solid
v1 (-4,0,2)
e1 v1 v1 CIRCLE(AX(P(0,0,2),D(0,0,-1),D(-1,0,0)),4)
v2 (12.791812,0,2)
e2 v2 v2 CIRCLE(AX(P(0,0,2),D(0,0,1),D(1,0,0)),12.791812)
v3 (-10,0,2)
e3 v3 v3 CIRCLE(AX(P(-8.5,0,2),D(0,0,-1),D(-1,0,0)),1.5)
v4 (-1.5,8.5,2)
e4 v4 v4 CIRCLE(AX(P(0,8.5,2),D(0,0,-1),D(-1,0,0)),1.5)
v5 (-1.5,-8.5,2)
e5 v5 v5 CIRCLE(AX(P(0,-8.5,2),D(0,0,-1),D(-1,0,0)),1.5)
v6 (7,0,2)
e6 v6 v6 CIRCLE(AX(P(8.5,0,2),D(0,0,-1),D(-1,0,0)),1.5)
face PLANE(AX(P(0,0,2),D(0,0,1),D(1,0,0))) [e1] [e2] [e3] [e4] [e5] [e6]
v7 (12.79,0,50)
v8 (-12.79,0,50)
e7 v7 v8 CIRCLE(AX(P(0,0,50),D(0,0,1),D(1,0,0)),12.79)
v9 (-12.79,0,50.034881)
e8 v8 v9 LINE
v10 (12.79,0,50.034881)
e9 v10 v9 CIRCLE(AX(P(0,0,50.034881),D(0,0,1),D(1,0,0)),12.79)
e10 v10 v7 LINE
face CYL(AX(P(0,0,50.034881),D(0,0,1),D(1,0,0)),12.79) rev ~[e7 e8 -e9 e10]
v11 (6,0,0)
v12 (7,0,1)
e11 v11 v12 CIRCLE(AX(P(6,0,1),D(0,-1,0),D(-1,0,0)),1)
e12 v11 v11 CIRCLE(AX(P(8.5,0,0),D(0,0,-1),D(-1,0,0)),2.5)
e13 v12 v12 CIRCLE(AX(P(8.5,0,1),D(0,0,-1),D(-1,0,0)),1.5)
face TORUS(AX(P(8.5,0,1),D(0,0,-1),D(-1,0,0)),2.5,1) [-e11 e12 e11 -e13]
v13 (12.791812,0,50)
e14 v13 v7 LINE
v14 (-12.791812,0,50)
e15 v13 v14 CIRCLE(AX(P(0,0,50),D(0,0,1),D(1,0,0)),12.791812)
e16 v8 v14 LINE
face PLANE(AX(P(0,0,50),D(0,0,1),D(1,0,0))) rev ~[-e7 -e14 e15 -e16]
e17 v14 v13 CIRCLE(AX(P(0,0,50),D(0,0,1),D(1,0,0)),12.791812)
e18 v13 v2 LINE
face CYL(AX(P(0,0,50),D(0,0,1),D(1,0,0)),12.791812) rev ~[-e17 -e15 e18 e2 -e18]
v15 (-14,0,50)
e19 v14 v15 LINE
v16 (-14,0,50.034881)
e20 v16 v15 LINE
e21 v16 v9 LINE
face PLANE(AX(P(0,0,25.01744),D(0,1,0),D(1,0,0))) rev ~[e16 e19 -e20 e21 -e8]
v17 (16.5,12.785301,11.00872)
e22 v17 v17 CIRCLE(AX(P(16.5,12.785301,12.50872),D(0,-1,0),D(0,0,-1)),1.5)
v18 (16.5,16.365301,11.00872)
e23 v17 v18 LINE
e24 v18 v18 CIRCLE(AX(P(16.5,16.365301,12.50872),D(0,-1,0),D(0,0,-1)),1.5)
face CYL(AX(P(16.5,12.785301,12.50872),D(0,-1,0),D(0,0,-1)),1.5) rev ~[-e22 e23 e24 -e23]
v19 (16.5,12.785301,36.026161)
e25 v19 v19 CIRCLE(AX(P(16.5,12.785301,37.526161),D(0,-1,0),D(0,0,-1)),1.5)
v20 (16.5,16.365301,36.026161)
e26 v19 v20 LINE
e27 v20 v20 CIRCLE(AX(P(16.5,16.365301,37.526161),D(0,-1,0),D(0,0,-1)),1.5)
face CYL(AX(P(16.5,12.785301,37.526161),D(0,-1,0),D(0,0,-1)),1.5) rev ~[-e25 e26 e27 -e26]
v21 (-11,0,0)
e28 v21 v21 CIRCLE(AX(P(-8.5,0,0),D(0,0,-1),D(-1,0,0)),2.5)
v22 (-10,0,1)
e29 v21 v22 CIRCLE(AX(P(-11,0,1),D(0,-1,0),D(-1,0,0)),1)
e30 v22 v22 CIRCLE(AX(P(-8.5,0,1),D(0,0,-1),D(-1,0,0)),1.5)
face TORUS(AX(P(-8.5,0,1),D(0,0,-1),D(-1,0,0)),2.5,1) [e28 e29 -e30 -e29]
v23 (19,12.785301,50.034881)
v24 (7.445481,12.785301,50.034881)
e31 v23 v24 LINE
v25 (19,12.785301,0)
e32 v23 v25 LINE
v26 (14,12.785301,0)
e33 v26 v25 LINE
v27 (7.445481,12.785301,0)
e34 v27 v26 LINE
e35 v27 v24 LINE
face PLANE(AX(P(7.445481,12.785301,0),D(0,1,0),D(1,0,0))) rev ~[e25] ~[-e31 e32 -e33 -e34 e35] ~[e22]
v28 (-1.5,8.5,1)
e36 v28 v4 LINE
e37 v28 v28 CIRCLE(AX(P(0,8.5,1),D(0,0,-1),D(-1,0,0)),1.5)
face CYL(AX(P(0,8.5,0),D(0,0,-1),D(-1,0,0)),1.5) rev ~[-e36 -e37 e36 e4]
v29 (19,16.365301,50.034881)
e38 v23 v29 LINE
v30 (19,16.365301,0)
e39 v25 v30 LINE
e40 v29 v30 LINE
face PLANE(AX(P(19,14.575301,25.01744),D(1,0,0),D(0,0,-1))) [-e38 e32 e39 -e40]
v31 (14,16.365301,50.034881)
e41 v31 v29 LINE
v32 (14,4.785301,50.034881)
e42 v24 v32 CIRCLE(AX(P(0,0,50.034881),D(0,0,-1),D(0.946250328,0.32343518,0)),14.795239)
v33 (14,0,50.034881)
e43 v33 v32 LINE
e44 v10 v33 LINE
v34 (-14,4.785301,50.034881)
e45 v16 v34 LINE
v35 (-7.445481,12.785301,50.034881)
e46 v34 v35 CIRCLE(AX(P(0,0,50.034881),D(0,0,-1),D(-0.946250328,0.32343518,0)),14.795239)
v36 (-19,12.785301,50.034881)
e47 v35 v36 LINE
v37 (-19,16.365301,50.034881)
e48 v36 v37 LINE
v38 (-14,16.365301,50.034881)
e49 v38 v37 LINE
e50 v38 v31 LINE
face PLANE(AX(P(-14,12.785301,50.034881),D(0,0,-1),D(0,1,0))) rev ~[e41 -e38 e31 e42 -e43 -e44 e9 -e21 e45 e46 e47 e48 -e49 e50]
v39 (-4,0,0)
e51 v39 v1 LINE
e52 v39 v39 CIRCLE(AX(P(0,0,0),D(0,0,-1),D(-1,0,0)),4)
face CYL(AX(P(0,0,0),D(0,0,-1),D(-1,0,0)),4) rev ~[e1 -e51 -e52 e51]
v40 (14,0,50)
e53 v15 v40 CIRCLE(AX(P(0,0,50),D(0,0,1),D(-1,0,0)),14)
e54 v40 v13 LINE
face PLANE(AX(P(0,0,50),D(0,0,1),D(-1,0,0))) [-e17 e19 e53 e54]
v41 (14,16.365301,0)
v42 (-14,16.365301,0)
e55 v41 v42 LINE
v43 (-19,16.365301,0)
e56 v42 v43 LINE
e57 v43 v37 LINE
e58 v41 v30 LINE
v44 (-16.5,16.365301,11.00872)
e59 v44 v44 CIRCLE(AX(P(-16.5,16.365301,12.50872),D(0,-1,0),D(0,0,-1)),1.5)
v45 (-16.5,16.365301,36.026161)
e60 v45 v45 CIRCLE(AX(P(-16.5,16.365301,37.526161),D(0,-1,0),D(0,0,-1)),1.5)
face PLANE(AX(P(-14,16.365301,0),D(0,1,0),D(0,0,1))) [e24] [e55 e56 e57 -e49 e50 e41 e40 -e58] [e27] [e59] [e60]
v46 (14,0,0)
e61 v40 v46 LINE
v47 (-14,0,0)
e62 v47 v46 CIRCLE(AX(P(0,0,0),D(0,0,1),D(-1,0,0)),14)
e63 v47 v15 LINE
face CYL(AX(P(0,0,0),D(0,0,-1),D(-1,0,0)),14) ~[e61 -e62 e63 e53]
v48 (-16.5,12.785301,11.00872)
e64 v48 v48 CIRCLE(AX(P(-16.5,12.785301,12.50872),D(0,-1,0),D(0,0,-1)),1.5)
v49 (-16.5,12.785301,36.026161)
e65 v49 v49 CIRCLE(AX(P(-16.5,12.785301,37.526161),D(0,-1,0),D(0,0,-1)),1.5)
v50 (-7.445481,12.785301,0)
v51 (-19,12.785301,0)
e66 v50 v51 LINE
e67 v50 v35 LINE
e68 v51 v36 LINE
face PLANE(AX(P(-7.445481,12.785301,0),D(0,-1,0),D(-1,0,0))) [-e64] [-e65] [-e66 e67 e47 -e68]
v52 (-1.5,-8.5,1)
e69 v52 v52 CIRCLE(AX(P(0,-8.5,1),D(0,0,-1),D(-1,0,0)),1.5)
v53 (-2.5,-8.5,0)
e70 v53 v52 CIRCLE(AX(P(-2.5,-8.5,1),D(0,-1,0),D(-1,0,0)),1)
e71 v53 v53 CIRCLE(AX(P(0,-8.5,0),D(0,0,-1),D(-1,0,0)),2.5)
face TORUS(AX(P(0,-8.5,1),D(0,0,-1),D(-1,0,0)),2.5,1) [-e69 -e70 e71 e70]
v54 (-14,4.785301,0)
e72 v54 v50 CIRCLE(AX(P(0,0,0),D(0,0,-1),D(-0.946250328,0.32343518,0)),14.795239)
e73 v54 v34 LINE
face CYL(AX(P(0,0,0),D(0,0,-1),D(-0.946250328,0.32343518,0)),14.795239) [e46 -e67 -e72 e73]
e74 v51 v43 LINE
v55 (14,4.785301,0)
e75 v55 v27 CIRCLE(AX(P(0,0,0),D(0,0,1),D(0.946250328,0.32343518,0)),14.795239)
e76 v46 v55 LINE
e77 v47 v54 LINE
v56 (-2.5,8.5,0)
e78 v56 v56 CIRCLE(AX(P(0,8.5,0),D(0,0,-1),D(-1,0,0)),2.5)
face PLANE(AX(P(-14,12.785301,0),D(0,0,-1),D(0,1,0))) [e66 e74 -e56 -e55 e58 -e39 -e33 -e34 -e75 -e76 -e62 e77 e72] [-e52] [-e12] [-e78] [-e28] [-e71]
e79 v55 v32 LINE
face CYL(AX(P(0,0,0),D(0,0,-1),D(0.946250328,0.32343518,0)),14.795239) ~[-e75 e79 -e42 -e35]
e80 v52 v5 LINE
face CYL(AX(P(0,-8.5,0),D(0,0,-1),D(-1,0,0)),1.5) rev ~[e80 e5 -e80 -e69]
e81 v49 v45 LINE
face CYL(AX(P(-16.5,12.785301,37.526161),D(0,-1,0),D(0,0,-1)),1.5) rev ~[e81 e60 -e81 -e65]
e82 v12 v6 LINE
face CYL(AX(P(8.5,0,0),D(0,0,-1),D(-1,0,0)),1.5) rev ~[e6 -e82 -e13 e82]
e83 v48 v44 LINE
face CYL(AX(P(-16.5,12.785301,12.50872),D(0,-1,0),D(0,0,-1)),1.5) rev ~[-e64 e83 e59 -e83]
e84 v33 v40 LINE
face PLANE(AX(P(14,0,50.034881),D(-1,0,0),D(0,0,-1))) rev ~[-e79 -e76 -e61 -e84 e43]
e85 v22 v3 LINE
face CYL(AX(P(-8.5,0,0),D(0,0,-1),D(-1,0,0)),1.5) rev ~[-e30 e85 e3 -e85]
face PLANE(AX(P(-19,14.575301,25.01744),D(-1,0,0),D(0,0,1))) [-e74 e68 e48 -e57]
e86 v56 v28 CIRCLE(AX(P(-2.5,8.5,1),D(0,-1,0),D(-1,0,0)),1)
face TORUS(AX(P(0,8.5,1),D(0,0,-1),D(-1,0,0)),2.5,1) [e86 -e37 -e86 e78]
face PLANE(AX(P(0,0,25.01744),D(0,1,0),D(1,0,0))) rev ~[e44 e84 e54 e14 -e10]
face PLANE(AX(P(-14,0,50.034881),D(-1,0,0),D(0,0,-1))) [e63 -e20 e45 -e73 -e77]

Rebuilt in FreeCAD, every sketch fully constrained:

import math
import FreeCAD as App
import Part
import Sketcher
from FreeCAD import Vector


def edges_at(feature, points):
    """Names of the edges that pass closest to the given points."""
    edges = feature.Shape.Edges
    near = lambda p: min(range(len(edges)), key=lambda i: edges[i].distToShape(Part.Vertex(*p))[0])
    return sorted({f"Edge{near(p) + 1}" for p in points})

doc = App.newDocument("Part")
body = doc.addObject("PartDesign::Body", "Body")

# Sketch on XY plane
sketch1 = doc.addObject("Sketcher::SketchObject", "Sketch")
body.addObject(sketch1)
sketch1.AttachmentSupport = (doc.XY_Plane, [""])
sketch1.MapMode = "FlatFace"
sketch1.addGeometry(Part.Circle(Vector(0, 0, 0), Vector(0, 0, 1), 14), False)
sketch1.addConstraint([
    Sketcher.Constraint("Coincident", 0, 3, -1, 1),
    Sketcher.Constraint("Diameter", 0, 28.0),
])
pad1 = doc.addObject("PartDesign::Pad", "Pad")
body.addObject(pad1)
pad1.Profile = sketch1
pad1.Length = 50

# Sketch on XZ plane
sketch2 = doc.addObject("Sketcher::SketchObject", "Sketch001")
body.addObject(sketch2)
sketch2.AttachmentSupport = (doc.XZ_Plane, [""])
sketch2.MapMode = "FlatFace"
sketch2.addGeometry([
    Part.LineSegment(Vector(-14, 0, 0), Vector(-14, 50, 0)),
    Part.LineSegment(Vector(-14, 50, 0), Vector(14, 50, 0)),
    Part.LineSegment(Vector(14, 50, 0), Vector(14, 0, 0)),
    Part.LineSegment(Vector(14, 0, 0), Vector(-14, 0, 0)),
], False)
sketch2.addConstraint([
    Sketcher.Constraint("Coincident", 0, 2, 1, 1),
    Sketcher.Constraint("Coincident", 1, 2, 2, 1),
    Sketcher.Constraint("Coincident", 2, 2, 3, 1),
    Sketcher.Constraint("Coincident", 3, 2, 0, 1),
    Sketcher.Constraint("Vertical", 0),
    Sketcher.Constraint("Horizontal", 1),
    Sketcher.Constraint("Vertical", 2),
    Sketcher.Constraint("Horizontal", 3),
    Sketcher.Constraint("Symmetric", 2, 2, 3, 2, -1, 1),
    Sketcher.Constraint("DistanceX", 1, 1, 1, 2, 28.0),
    Sketcher.Constraint("DistanceY", 0, 1, 0, 2, 50.034881),
])
pad2 = doc.addObject("PartDesign::Pad", "Pad001")
body.addObject(pad2)
pad2.Profile = sketch2
pad2.Length = 21
pad2.Reversed = True

# Sketch on XY plane
sketch3 = doc.addObject("Sketcher::SketchObject", "Sketch002")
body.addObject(sketch3)
sketch3.AttachmentSupport = (doc.XY_Plane, [""])
sketch3.MapMode = "FlatFace"
sketch3.AttachmentOffset = App.Placement(Vector(0, 0, 50), App.Rotation())
sketch3.addGeometry(Part.Circle(Vector(0, 0, 0), Vector(0, 0, 1), 13), False)
sketch3.addConstraint([
    Sketcher.Constraint("Coincident", 0, 3, -1, 1),
    Sketcher.Constraint("Diameter", 0, 25.583624),
])
pocket1 = doc.addObject("PartDesign::Pocket", "Pocket")
body.addObject(pocket1)
pocket1.Profile = sketch3
pocket1.Length = 48

# Sketch on XY plane
sketch4 = doc.addObject("Sketcher::SketchObject", "Sketch003")
body.addObject(sketch4)
sketch4.AttachmentSupport = (doc.XY_Plane, [""])
sketch4.MapMode = "FlatFace"
sketch4.addGeometry(Part.Circle(Vector(0, 0, 0), Vector(0, 0, 1), 4), False)
sketch4.addConstraint([
    Sketcher.Constraint("Coincident", 0, 3, -1, 1),
    Sketcher.Constraint("Diameter", 0, 8.0),
])
pocket2 = doc.addObject("PartDesign::Pocket", "Pocket001")
body.addObject(pocket2)
pocket2.Profile = sketch4
pocket2.Length = 49
pocket2.Reversed = True

# Sketch on XY plane
sketch5 = doc.addObject("Sketcher::SketchObject", "Sketch004")
body.addObject(sketch5)
sketch5.AttachmentSupport = (doc.XY_Plane, [""])
sketch5.MapMode = "FlatFace"
sketch5.addGeometry([
    Part.Circle(Vector(0, -8.5, 0), Vector(0, 0, 1), 1.5),
    Part.Circle(Vector(0, 8.5, 0), Vector(0, 0, 1), 1.5),
    Part.Circle(Vector(-8.5, 0, 0), Vector(0, 0, 1), 1.5),
    Part.Circle(Vector(8.5, 0, 0), Vector(0, 0, 1), 1.5),
], False)
sketch5.addConstraint([
    Sketcher.Constraint("Equal", 0, 1),
    Sketcher.Constraint("Equal", 1, 2),
    Sketcher.Constraint("Equal", 2, 3),
    Sketcher.Constraint("Symmetric", 0, 3, 1, 3, -1, 1),
    Sketcher.Constraint("Symmetric", 2, 3, 3, 3, -1, 1),
    Sketcher.Constraint("PointOnObject", 0, 3, -2),
    Sketcher.Constraint("PointOnObject", 2, 3, -1),
    Sketcher.Constraint("Diameter", 0, 3.0),
    Sketcher.Constraint("DistanceY", 0, 3, 1, 3, 17.0),
    Sketcher.Constraint("DistanceX", 2, 3, 3, 3, 17.0),
])
pocket3 = doc.addObject("PartDesign::Pocket", "Pocket002")
body.addObject(pocket3)
pocket3.Profile = sketch5
pocket3.Length = 49
pocket3.Reversed = True

# Sketch on XY plane
sketch6 = doc.addObject("Sketcher::SketchObject", "Sketch005")
body.addObject(sketch6)
sketch6.AttachmentSupport = (doc.XY_Plane, [""])
sketch6.MapMode = "FlatFace"
sketch6.AttachmentOffset = App.Placement(Vector(0, 0, 50.034881), App.Rotation())
sketch6.addGeometry(Part.Circle(Vector(0, 0, 0), Vector(0, 0, 1), 13), False)
sketch6.addConstraint([
    Sketcher.Constraint("Coincident", 0, 3, -1, 1),
    Sketcher.Constraint("Diameter", 0, 25.58),
])
pocket4 = doc.addObject("PartDesign::Pocket", "Pocket003")
body.addObject(pocket4)
pocket4.Profile = sketch6
pocket4.Length = 21

# Sketch on XY plane
sketch7 = doc.addObject("Sketcher::SketchObject", "Sketch006")
body.addObject(sketch7)
sketch7.AttachmentSupport = (doc.XY_Plane, [""])
sketch7.MapMode = "FlatFace"
sketch7.AttachmentOffset = App.Placement(Vector(0, 0, 50.034881), App.Rotation())
sketch7.addGeometry([
    Part.LineSegment(Vector(-14, 21, 0), Vector(-14, 16.4, 0)),
    Part.LineSegment(Vector(-14, 16.4, 0), Vector(14, 16.4, 0)),
    Part.LineSegment(Vector(14, 16.4, 0), Vector(14, 21, 0)),
    Part.LineSegment(Vector(14, 21, 0), Vector(-14, 21, 0)),
], False)
sketch7.addConstraint([
    Sketcher.Constraint("Coincident", 0, 2, 1, 1),
    Sketcher.Constraint("Coincident", 1, 2, 2, 1),
    Sketcher.Constraint("Coincident", 2, 2, 3, 1),
    Sketcher.Constraint("Coincident", 3, 2, 0, 1),
    Sketcher.Constraint("Vertical", 0),
    Sketcher.Constraint("Horizontal", 1),
    Sketcher.Constraint("Vertical", 2),
    Sketcher.Constraint("Horizontal", 3),
    Sketcher.Constraint("DistanceX", 1, 1, 1, 2, 28.0),
    Sketcher.Constraint("DistanceX", 0, 2, -1, 1, 14.0),
    Sketcher.Constraint("DistanceY", -1, 1, 2, 2, 21.0),
    Sketcher.Constraint("DistanceY", 0, 2, 0, 1, 4.634699),
])
pocket5 = doc.addObject("PartDesign::Pocket", "Pocket004")
body.addObject(pocket5)
pocket5.Profile = sketch7
pocket5.Length = 53

# Sketch on YZ plane
sketch8 = doc.addObject("Sketcher::SketchObject", "Sketch007")
body.addObject(sketch8)
sketch8.AttachmentSupport = (doc.YZ_Plane, [""])
sketch8.MapMode = "FlatFace"
sketch8.AttachmentOffset = App.Placement(Vector(0, 0, 14), App.Rotation())
sketch8.addGeometry([
    Part.LineSegment(Vector(16.4, 50, 0), Vector(12.8, 50, 0)),
    Part.LineSegment(Vector(12.8, 50, 0), Vector(12.8, 0, 0)),
    Part.LineSegment(Vector(12.8, 0, 0), Vector(16.4, 0, 0)),
    Part.LineSegment(Vector(16.4, 0, 0), Vector(16.4, 50, 0)),
], False)
sketch8.addConstraint([
    Sketcher.Constraint("Coincident", 0, 2, 1, 1),
    Sketcher.Constraint("Coincident", 1, 2, 2, 1),
    Sketcher.Constraint("Coincident", 2, 2, 3, 1),
    Sketcher.Constraint("Coincident", 3, 2, 0, 1),
    Sketcher.Constraint("Horizontal", 0),
    Sketcher.Constraint("Vertical", 1),
    Sketcher.Constraint("Horizontal", 2),
    Sketcher.Constraint("Vertical", 3),
    Sketcher.Constraint("PointOnObject", 1, 2, -1),
    Sketcher.Constraint("DistanceX", 0, 2, 0, 1, 3.58),
    Sketcher.Constraint("DistanceY", 1, 2, 1, 1, 50.034881),
    Sketcher.Constraint("DistanceX", -1, 1, 0, 2, 12.785301),
])
pad3 = doc.addObject("PartDesign::Pad", "Pad002")
body.addObject(pad3)
pad3.Profile = sketch8
pad3.Length = 5

# Sketch on XZ plane
sketch9 = doc.addObject("Sketcher::SketchObject", "Sketch008")
body.addObject(sketch9)
sketch9.AttachmentSupport = (doc.XZ_Plane, [""])
sketch9.MapMode = "FlatFace"
sketch9.AttachmentOffset = App.Placement(Vector(0, 0, -12.785301), App.Rotation())
sketch9.addGeometry([
    Part.Circle(Vector(16.5, 37.5, 0), Vector(0, 0, 1), 1.5),
    Part.Circle(Vector(16.5, 12.5, 0), Vector(0, 0, 1), 1.5),
], False)
sketch9.addConstraint([
    Sketcher.Constraint("Equal", 0, 1),
    Sketcher.Constraint("Vertical", 0, 3, 1, 3),
    Sketcher.Constraint("Diameter", 0, 3.0),
    Sketcher.Constraint("DistanceX", -1, 1, 0, 3, 16.5),
    Sketcher.Constraint("DistanceY", -1, 1, 0, 3, 37.526161),
    Sketcher.Constraint("DistanceY", -1, 1, 1, 3, 12.50872),
])
pocket6 = doc.addObject("PartDesign::Pocket", "Pocket005")
body.addObject(pocket6)
pocket6.Profile = sketch9
pocket6.Length = 5

# Sketch on YZ plane
sketch10 = doc.addObject("Sketcher::SketchObject", "Sketch009")
body.addObject(sketch10)
sketch10.AttachmentSupport = (doc.YZ_Plane, [""])
sketch10.MapMode = "FlatFace"
sketch10.AttachmentOffset = App.Placement(Vector(0, 0, -14), App.Rotation())
sketch10.addGeometry([
    Part.LineSegment(Vector(16.4, 0, 0), Vector(12.8, 0, 0)),
    Part.LineSegment(Vector(12.8, 0, 0), Vector(12.8, 50, 0)),
    Part.LineSegment(Vector(12.8, 50, 0), Vector(16.4, 50, 0)),
    Part.LineSegment(Vector(16.4, 50, 0), Vector(16.4, 0, 0)),
], False)
sketch10.addConstraint([
    Sketcher.Constraint("Coincident", 0, 2, 1, 1),
    Sketcher.Constraint("Coincident", 1, 2, 2, 1),
    Sketcher.Constraint("Coincident", 2, 2, 3, 1),
    Sketcher.Constraint("Coincident", 3, 2, 0, 1),
    Sketcher.Constraint("Horizontal", 0),
    Sketcher.Constraint("Vertical", 1),
    Sketcher.Constraint("Horizontal", 2),
    Sketcher.Constraint("Vertical", 3),
    Sketcher.Constraint("PointOnObject", 0, 2, -1),
    Sketcher.Constraint("DistanceX", 0, 2, 0, 1, 3.58),
    Sketcher.Constraint("DistanceY", 1, 1, 1, 2, 50.034881),
    Sketcher.Constraint("DistanceX", -1, 1, 0, 2, 12.785301),
])
pad4 = doc.addObject("PartDesign::Pad", "Pad003")
body.addObject(pad4)
pad4.Profile = sketch10
pad4.Length = 5
pad4.Reversed = True

# Sketch on XZ plane
sketch11 = doc.addObject("Sketcher::SketchObject", "Sketch010")
body.addObject(sketch11)
sketch11.AttachmentSupport = (doc.XZ_Plane, [""])
sketch11.MapMode = "FlatFace"
sketch11.AttachmentOffset = App.Placement(Vector(0, 0, -12.785301), App.Rotation())
sketch11.addGeometry([
    Part.Circle(Vector(-16.5, 12.5, 0), Vector(0, 0, 1), 1.5),
    Part.Circle(Vector(-16.5, 37.5, 0), Vector(0, 0, 1), 1.5),
], False)
sketch11.addConstraint([
    Sketcher.Constraint("Equal", 0, 1),
    Sketcher.Constraint("Vertical", 0, 3, 1, 3),
    Sketcher.Constraint("Diameter", 0, 3.0),
    Sketcher.Constraint("DistanceX", 0, 3, -1, 1, 16.5),
    Sketcher.Constraint("DistanceY", -1, 1, 0, 3, 12.50872),
    Sketcher.Constraint("DistanceY", -1, 1, 1, 3, 37.526161),
])
pocket7 = doc.addObject("PartDesign::Pocket", "Pocket006")
body.addObject(pocket7)
pocket7.Profile = sketch11
pocket7.Length = 5
doc.recompute()

fillet = doc.addObject("PartDesign::Fillet", "Fillet")
body.addObject(fillet)
fillet.Base = (pocket7, edges_at(pocket7, [(10, 0, 0)]))
fillet.Radius = 1
doc.recompute()

fillet2 = doc.addObject("PartDesign::Fillet", "Fillet001")
body.addObject(fillet2)
fillet2.Base = (fillet, edges_at(fillet, [(1.5, -8.5, 0), (1.5, 8.5, 0), (-7, 0, 0)]))
fillet2.Radius = 1

# Sketch on XY plane
sketch12 = doc.addObject("Sketcher::SketchObject", "Sketch011")
body.addObject(sketch12)
sketch12.AttachmentSupport = (doc.XY_Plane, [""])
sketch12.MapMode = "FlatFace"
sketch12.addGeometry([
    Part.LineSegment(Vector(7, 13, 0), Vector(14, 13, 0)),  # 0
    Part.LineSegment(Vector(14, 13, 0), Vector(14, 5, 0)),  # 1
    Part.ArcOfCircle(Part.Circle(Vector(0, 0, 0), Vector(0, 0, 1), 15), math.radians(19), math.radians(60)),  # 2
    Part.LineSegment(Vector(-14, 5, 0), Vector(-14, 13, 0)),  # 3
    Part.LineSegment(Vector(-14, 13, 0), Vector(-7, 13, 0)),  # 4
    Part.ArcOfCircle(Part.Circle(Vector(0, 0, 0), Vector(0, 0, 1), 15), math.radians(120), math.radians(161)),  # 5
], False)
sketch12.addConstraint([
    Sketcher.Constraint("Coincident", 0, 2, 1, 1),
    Sketcher.Constraint("Coincident", 1, 2, 2, 1),
    Sketcher.Constraint("Coincident", 2, 2, 0, 1),
    Sketcher.Constraint("Coincident", 3, 2, 4, 1),
    Sketcher.Constraint("Coincident", 4, 2, 5, 1),
    Sketcher.Constraint("Coincident", 5, 2, 3, 1),
    Sketcher.Constraint("Horizontal", 0),
    Sketcher.Constraint("Vertical", 1),
    Sketcher.Constraint("Vertical", 3),
    Sketcher.Constraint("Horizontal", 4),
    Sketcher.Constraint("Coincident", 2, 3, -1, 1),
    Sketcher.Constraint("Coincident", 5, 3, -1, 1),
    Sketcher.Constraint("Equal", 2, 5),
    Sketcher.Constraint("Symmetric", 0, 2, 3, 2, -2),
    Sketcher.Constraint("DistanceY", 1, 2, 1, 1, 8.0),
    Sketcher.Constraint("DistanceX", -1, 1, 0, 2, 14.0),
    Sketcher.Constraint("Radius", 2, 14.795239),
])
pocket8 = doc.addObject("PartDesign::Pocket", "Pocket007")
body.addObject(pocket8)
pocket8.Profile = sketch12
pocket8.Length = 73
pocket8.Reversed = True

doc.recompute()
